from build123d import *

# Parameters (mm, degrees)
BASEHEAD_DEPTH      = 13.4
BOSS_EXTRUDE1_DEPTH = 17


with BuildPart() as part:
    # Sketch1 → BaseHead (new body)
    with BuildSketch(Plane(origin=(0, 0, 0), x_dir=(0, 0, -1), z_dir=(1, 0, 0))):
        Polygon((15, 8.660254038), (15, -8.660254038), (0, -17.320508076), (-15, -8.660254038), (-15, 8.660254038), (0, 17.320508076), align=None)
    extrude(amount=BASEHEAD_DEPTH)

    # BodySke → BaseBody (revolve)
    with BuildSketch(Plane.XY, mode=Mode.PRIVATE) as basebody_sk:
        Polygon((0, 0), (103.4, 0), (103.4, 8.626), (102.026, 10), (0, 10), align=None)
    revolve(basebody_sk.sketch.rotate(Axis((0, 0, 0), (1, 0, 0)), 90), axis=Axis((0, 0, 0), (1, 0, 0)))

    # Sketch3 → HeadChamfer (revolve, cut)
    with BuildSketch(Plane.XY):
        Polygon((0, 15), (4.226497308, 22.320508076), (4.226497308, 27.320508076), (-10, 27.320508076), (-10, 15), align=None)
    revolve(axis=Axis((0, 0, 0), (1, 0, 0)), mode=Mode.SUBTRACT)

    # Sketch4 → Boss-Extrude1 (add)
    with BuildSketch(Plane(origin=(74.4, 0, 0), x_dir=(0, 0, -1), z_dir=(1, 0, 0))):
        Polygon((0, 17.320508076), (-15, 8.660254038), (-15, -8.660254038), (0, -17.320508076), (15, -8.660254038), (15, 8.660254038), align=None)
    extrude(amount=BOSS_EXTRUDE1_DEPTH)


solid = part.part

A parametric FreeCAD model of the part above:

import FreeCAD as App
import Part
import Sketcher

V = App.Vector
Q = App.Units.Quantity


def add_polygon(sketch, points):
    """Adds a closed chain of lines whose ends are joined by coincident constraints."""
    first, n = sketch.GeometryCount, len(points)
    for a, b in zip(points, points[1:] + points[:1]):
        sketch.addGeometry(Part.LineSegment(App.Vector(*a, 0), App.Vector(*b, 0)), False)
    for i in range(n):
        sketch.addConstraint(Sketcher.Constraint("Coincident", first + i, 2, first + (i + 1) % n, 1))

doc = App.newDocument("Part")
body = doc.addObject("PartDesign::Body", "Body")

sketch1 = doc.addObject("Sketcher::SketchObject", "Sketch")
body.addObject(sketch1)
sketch1.AttachmentSupport = (doc.YZ_Plane, [""])
sketch1.MapMode = "FlatFace"
add_polygon(sketch1, [(-9, -15), (9, -15), (17, 0), (9, 15), (-9, 15), (-17, 0)])
sketch1.addConstraint(Sketcher.Constraint("Horizontal", 0))
sketch1.addConstraint(Sketcher.Constraint("Horizontal", 3))
sketch1.addConstraint(Sketcher.Constraint("Symmetric", 0, 2, 3, 2, -1, 1))
sketch1.addConstraint(Sketcher.Constraint("Symmetric", 1, 2, 4, 2, -1, 1))
sketch1.addConstraint(Sketcher.Constraint("PointOnObject", 1, 2, -1))
sketch1.addConstraint(Sketcher.Constraint("Parallel", 2, 5))
sketch1.addConstraint(Sketcher.Constraint("Vertical", 0, 2, 2, 2))
sketch1.addConstraint(Sketcher.Constraint("Angle", 1, Q("60 deg")))
sketch1.addConstraint(Sketcher.Constraint("DistanceY", 0, 2, -1, 1, Q("15 mm")))
sketch1.addConstraint(Sketcher.Constraint("DistanceX", 0, 1, 0, 2, Q("17.320508 mm")))
pad1 = doc.addObject("PartDesign::Pad", "Pad")
body.addObject(pad1)
pad1.Profile = sketch1
pad1.Length = 13.4

sketch2 = doc.addObject("Sketcher::SketchObject", "Sketch001")
body.addObject(sketch2)
sketch2.AttachmentSupport = (doc.XY_Plane, [""])
sketch2.MapMode = "FlatFace"
add_polygon(sketch2, [(0, 0), (103.4, 0), (103.4, 8.6), (102, 10), (0, 10)])
sketch2.addConstraint(Sketcher.Constraint("Horizontal", 0))
sketch2.addConstraint(Sketcher.Constraint("Vertical", 1))
sketch2.addConstraint(Sketcher.Constraint("Horizontal", 3))
sketch2.addConstraint(Sketcher.Constraint("Vertical", 4))
sketch2.addConstraint(Sketcher.Constraint("Coincident", 4, 2, -1, 1))
sketch2.addConstraint(Sketcher.Constraint("DistanceY", 4, 2, 4, 1, Q("10 mm")))
sketch2.addConstraint(Sketcher.Constraint("Angle", 2, Q("135 deg")))
sketch2.addConstraint(Sketcher.Constraint("DistanceX", 0, 1, 0, 2, Q("103.4 mm")))
sketch2.addConstraint(Sketcher.Constraint("DistanceX", 3, 2, 3, 1, Q("102.026 mm")))
revolution = doc.addObject("PartDesign::Revolution", "Revolution")
body.addObject(revolution)
revolution.Profile = sketch2
revolution.ReferenceAxis = (sketch2, ["H_Axis"])
revolution.Angle = 360

sketch3 = doc.addObject("Sketcher::SketchObject", "Sketch002")
body.addObject(sketch3)
sketch3.AttachmentSupport = (doc.XY_Plane, [""])
sketch3.MapMode = "FlatFace"
add_polygon(sketch3, [(0, 15), (4, 22), (4, 27), (-10, 27), (-10, 15)])
sketch3.addConstraint(Sketcher.Constraint("Vertical", 1))
sketch3.addConstraint(Sketcher.Constraint("Horizontal", 2))
sketch3.addConstraint(Sketcher.Constraint("Vertical", 3))
sketch3.addConstraint(Sketcher.Constraint("Horizontal", 4))
sketch3.addConstraint(Sketcher.Constraint("PointOnObject", 4, 2, -2))
sketch3.addConstraint(Sketcher.Constraint("DistanceX", 4, 1, 4, 2, Q("10 mm")))
sketch3.addConstraint(Sketcher.Constraint("DistanceY", 1, 1, 1, 2, Q("5 mm")))
sketch3.addConstraint(Sketcher.Constraint("Angle", 0, Q("60 deg")))
sketch3.addConstraint(Sketcher.Constraint("DistanceY", -1, 1, 3, 2, Q("15 mm")))
sketch3.addConstraint(Sketcher.Constraint("DistanceY", 3, 2, 3, 1, Q("12.320508 mm")))
groove = doc.addObject("PartDesign::Groove", "Groove")
body.addObject(groove)
groove.Profile = sketch3
groove.ReferenceAxis = (sketch3, ["H_Axis"])
groove.Angle = 360

sketch4 = doc.addObject("Sketcher::SketchObject", "Sketch003")
body.addObject(sketch4)
sketch4.AttachmentSupport = (doc.YZ_Plane, [""])
sketch4.MapMode = "FlatFace"
sketch4.AttachmentOffset = App.Placement(V(0, 0, 74.4), App.Rotation())
add_polygon(sketch4, [(17, 0), (9, 15), (-9, 15), (-17, 0), (-9, -15), (9, -15)])
sketch4.addConstraint(Sketcher.Constraint("Horizontal", 1))
sketch4.addConstraint(Sketcher.Constraint("Horizontal", 4))
sketch4.addConstraint(Sketcher.Constraint("Symmetric", 0, 2, 3, 2, -1, 1))
sketch4.addConstraint(Sketcher.Constraint("Symmetric", 2, 2, 5, 2, -1, 1))
sketch4.addConstraint(Sketcher.Constraint("PointOnObject", 2, 2, -1))
sketch4.addConstraint(Sketcher.Constraint("Parallel", 2, 5))
sketch4.addConstraint(Sketcher.Constraint("Vertical", 1, 2, 3, 2))
sketch4.addConstraint(Sketcher.Constraint("Angle", 0, Q("120 deg")))
sketch4.addConstraint(Sketcher.Constraint("DistanceY", -1, 1, 0, 2, Q("15 mm")))
sketch4.addConstraint(Sketcher.Constraint("DistanceX", 1, 2, 1, 1, Q("17.320508 mm")))
pad2 = doc.addObject("PartDesign::Pad", "Pad001")
body.addObject(pad2)
pad2.Profile = sketch4
pad2.Length = 17

doc.recompute()
